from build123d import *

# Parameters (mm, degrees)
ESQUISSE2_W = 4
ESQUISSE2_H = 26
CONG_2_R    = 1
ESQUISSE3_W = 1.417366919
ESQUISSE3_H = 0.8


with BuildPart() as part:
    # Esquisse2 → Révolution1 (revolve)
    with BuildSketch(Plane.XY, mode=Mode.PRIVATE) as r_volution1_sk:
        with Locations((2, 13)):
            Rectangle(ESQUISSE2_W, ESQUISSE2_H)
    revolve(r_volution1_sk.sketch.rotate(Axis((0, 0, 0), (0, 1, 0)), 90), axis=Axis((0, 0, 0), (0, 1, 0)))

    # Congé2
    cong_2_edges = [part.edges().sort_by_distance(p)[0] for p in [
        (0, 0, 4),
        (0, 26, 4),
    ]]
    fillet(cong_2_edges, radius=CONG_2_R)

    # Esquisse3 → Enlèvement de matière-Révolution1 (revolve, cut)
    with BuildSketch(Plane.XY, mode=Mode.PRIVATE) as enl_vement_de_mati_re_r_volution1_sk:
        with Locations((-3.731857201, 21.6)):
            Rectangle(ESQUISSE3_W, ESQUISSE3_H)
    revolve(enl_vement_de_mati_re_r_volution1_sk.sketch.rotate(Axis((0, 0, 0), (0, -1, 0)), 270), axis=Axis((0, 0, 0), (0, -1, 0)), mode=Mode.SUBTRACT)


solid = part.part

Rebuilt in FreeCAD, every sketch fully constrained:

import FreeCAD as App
import Part
import Sketcher
from FreeCAD import Vector


def edges_at(feature, points):
    """Names of the edges that pass closest to the given points."""
    edges = feature.Shape.Edges
    near = lambda p: min(range(len(edges)), key=lambda i: edges[i].distToShape(Part.Vertex(*p))[0])
    return sorted({f"Edge{near(p) + 1}" for p in points})


def add_polygon(sketch, points):
    """Adds a closed chain of lines whose ends are joined by coincident constraints."""
    first, n = sketch.GeometryCount, len(points)
    for a, b in zip(points, points[1:] + points[:1]):
        sketch.addGeometry(Part.LineSegment(App.Vector(*a, 0), App.Vector(*b, 0)), False)
    for i in range(n):
        sketch.addConstraint(Sketcher.Constraint("Coincident", first + i, 2, first + (i + 1) % n, 1))

doc = App.newDocument("Part")
body = doc.addObject("PartDesign::Body", "Body")

# Sketch on XY plane
sketch1 = body.newObject("Sketcher::SketchObject", "Sketch")
sketch1.AttachmentSupport = (doc.getObject("XY_Plane"), [""])
sketch1.MapMode = "FlatFace"
add_polygon(sketch1, [(0, 26), (0, 0), (4, 0), (4, 26)])  # lines 0-3
sketch1.addConstraint([
    Sketcher.Constraint("Vertical", 0),
    Sketcher.Constraint("Horizontal", 1),
    Sketcher.Constraint("Vertical", 2),
    Sketcher.Constraint("Horizontal", 3),
    Sketcher.Constraint("Coincident", 0, 2, -1, 1),
    Sketcher.Constraint("DistanceX", 1, 1, 1, 2, 4.0),
    Sketcher.Constraint("DistanceY", 0, 2, 0, 1, 26.0),
])
revolution = body.newObject("PartDesign::Revolution", "Revolution")
revolution.Profile = sketch1
revolution.ReferenceAxis = (sketch1, ["V_Axis"])
revolution.Angle = 360
doc.recompute()

fillet = body.newObject("PartDesign::Fillet", "Fillet")
fillet.Base = (revolution, edges_at(revolution, [(0, 0, 4), (0, 26, 4)]))
fillet.Radius = 1

# Sketch on XY plane
sketch2 = body.newObject("Sketcher::SketchObject", "Sketch001")
sketch2.AttachmentSupport = (doc.getObject("XY_Plane"), [""])
sketch2.MapMode = "FlatFace"
add_polygon(sketch2, [(-4.440541, 22), (-4.440541, 21.2), (-3.023174, 21.2), (-3.023174, 22)])  # lines 0-3
sketch2.addConstraint([
    Sketcher.Constraint("Vertical", 0),
    Sketcher.Constraint("Horizontal", 1),
    Sketcher.Constraint("Vertical", 2),
    Sketcher.Constraint("Horizontal", 3),
    Sketcher.Constraint("DistanceY", 0, 2, 0, 1, 0.8),
    Sketcher.Constraint("DistanceY", -1, 1, 2, 2, 22.0),
    Sketcher.Constraint("DistanceX", 1, 1, 1, 2, 1.417367),
    Sketcher.Constraint("DistanceX", 0, 2, -1, 1, 4.440541),
])
groove = body.newObject("PartDesign::Groove", "Groove")
groove.Profile = sketch2
groove.ReferenceAxis = (sketch2, ["V_Axis"])
groove.Angle = 360

doc.recompute()
